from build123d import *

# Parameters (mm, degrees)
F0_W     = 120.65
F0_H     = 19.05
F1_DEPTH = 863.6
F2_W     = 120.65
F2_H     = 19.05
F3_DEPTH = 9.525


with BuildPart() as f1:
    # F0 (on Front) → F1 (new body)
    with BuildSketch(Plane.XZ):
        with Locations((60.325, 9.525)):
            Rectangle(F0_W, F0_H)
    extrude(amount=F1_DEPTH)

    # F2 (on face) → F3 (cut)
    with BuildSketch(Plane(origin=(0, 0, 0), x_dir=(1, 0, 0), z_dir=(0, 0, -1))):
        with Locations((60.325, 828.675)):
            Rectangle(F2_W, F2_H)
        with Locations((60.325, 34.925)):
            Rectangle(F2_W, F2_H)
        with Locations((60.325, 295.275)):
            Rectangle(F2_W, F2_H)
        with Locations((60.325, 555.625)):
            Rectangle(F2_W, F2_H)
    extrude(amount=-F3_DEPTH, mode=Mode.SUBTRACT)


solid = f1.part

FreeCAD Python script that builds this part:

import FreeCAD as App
import Part
import Sketcher
Q = App.Units.Quantity


def add_polygon(sketch, points):
    """Adds a closed chain of lines whose ends are joined by coincident constraints."""
    first, n = sketch.GeometryCount, len(points)
    for a, b in zip(points, points[1:] + points[:1]):
        sketch.addGeometry(Part.LineSegment(App.Vector(*a, 0), App.Vector(*b, 0)), False)
    for i in range(n):
        sketch.addConstraint(Sketcher.Constraint("Coincident", first + i, 2, first + (i + 1) % n, 1))

doc = App.newDocument("Part")
body = doc.addObject("PartDesign::Body", "Body")

sketch1 = doc.addObject("Sketcher::SketchObject", "Sketch")
body.addObject(sketch1)
sketch1.AttachmentSupport = (doc.XZ_Plane, [""])
sketch1.MapMode = "FlatFace"
add_polygon(sketch1, [(0, 19), (0, 0), (121, 0), (121, 19)])
sketch1.addConstraint([
    Sketcher.Constraint("Vertical", 0),
    Sketcher.Constraint("Horizontal", 1),
    Sketcher.Constraint("Vertical", 2),
    Sketcher.Constraint("Horizontal", 3),
    Sketcher.Constraint("Coincident", 0, 2, -1, 1),
    Sketcher.Constraint("DistanceX", 1, 1, 1, 2, Q("4.75 in")),
    Sketcher.Constraint("DistanceY", 0, 2, 0, 1, Q("0.75 in")),
])
pad1 = doc.addObject("PartDesign::Pad", "Pad")
body.addObject(pad1)
pad1.Profile = sketch1
pad1.Length = Q("34 in")

sketch2 = doc.addObject("Sketcher::SketchObject", "Sketch001")
body.addObject(sketch2)
sketch2.AttachmentSupport = (doc.XY_Plane, [""])
sketch2.MapMode = "FlatFace"
add_polygon(sketch2, [(0, -838), (0, -819), (121, -819), (121, -838)])
add_polygon(sketch2, [(0, -44), (0, -25), (121, -25), (121, -44)])
add_polygon(sketch2, [(0, -305), (0, -286), (121, -286), (121, -305)])
add_polygon(sketch2, [(0, -565), (0, -546), (121, -546), (121, -565)])
sketch2.addConstraint([
    Sketcher.Constraint("Vertical", 0),
    Sketcher.Constraint("Horizontal", 1),
    Sketcher.Constraint("Vertical", 2),
    Sketcher.Constraint("Horizontal", 3),
    Sketcher.Constraint("Vertical", 4),
    Sketcher.Constraint("Horizontal", 5),
    Sketcher.Constraint("Vertical", 6),
    Sketcher.Constraint("Horizontal", 7),
    Sketcher.Constraint("Vertical", 8),
    Sketcher.Constraint("Horizontal", 9),
    Sketcher.Constraint("Vertical", 10),
    Sketcher.Constraint("Horizontal", 11),
    Sketcher.Constraint("Vertical", 12),
    Sketcher.Constraint("Horizontal", 13),
    Sketcher.Constraint("Vertical", 14),
    Sketcher.Constraint("Horizontal", 15),
    Sketcher.Constraint("PointOnObject", 0, 2, -2),
    Sketcher.Constraint("PointOnObject", 4, 2, -2),
    Sketcher.Constraint("PointOnObject", 8, 2, -2),
    Sketcher.Constraint("PointOnObject", 12, 2, -2),
    Sketcher.Constraint("Vertical", 2, 2, 5, 2),
    Sketcher.Constraint("Vertical", 6, 2, 9, 2),
    Sketcher.Constraint("Vertical", 10, 2, 13, 2),
    Sketcher.Constraint("Equal", 2, 4),
    Sketcher.Constraint("Equal", 6, 8),
    Sketcher.Constraint("Equal", 10, 12),
    Sketcher.Constraint("DistanceY", 2, 2, -1, 1, Q("33 in")),
    Sketcher.Constraint("DistanceY", 4, 2, -1, 1, Q("1 in")),
    Sketcher.Constraint("DistanceY", 10, 2, -1, 1, Q("12 in")),
    Sketcher.Constraint("DistanceY", 1, 2, 14, 2, Q("10 in")),
    Sketcher.Constraint("DistanceX", 1, 1, 1, 2, Q("4.75 in")),
    Sketcher.Constraint("DistanceY", 0, 1, 0, 2, Q("0.75 in")),
])
pocket1 = doc.addObject("PartDesign::Pocket", "Pocket")
body.addObject(pocket1)
pocket1.Profile = sketch2
pocket1.Length = Q("0.375 in")
pocket1.Reversed = True

doc.recompute()
